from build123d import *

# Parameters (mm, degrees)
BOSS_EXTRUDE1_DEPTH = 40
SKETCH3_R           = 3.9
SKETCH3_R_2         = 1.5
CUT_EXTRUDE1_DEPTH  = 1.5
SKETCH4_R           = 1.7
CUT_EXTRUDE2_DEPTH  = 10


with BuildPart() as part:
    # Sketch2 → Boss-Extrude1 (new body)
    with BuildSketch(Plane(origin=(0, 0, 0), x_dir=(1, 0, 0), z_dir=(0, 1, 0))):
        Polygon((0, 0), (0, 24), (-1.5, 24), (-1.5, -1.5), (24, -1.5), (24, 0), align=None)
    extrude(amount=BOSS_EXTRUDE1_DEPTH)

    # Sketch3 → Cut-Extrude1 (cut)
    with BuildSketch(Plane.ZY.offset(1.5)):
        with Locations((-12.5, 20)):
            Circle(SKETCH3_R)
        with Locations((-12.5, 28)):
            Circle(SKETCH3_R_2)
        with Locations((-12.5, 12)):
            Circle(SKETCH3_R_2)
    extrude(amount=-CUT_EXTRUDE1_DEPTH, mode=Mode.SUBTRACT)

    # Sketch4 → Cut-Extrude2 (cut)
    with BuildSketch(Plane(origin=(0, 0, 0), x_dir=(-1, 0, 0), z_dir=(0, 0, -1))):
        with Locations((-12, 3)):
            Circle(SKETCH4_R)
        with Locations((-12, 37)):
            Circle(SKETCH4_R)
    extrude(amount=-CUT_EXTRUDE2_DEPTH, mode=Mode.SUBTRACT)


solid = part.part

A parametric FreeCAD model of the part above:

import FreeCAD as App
import Part
import Sketcher
from FreeCAD import Vector

doc = App.newDocument("Part")
params = doc.addObject("Spreadsheet::Sheet", "Params")
for row, (alias, value) in enumerate([
    ("sketch1_width", "24 mm"),
    ("sketch1_width2", "1.5 mm"),
    ("pad1_length", "40 mm"),
    ("sketch2_diameter", "3 mm"),
    ("sketch2_diameter2", "7.8 mm"),
    ("pocket1_length", "1.5 mm"),
    ("sketch3_diameter", "3.4 mm"),
    ("pocket2_length", "10 mm"),
], start=1):
    params.set(f"A{row}", alias)
    params.set(f"B{row}", "=" + value)
    params.setAlias(f"B{row}", alias)

body = doc.addObject("PartDesign::Body", "Body")

# Sketch on XZ plane
sketch1 = body.newObject("Sketcher::SketchObject", "Sketch")
sketch1.AttachmentSupport = (doc.getObject("XZ_Plane"), [""])
sketch1.MapMode = "FlatFace"
sketch1.addGeometry([
    Part.LineSegment(Vector(0, 0, 0), Vector(0, -24, 0)),  # 0
    Part.LineSegment(Vector(0, -24, 0), Vector(-1.5, -24, 0)),  # 1
    Part.LineSegment(Vector(-1.5, -24, 0), Vector(-1.5, 1.5, 0)),  # 2
    Part.LineSegment(Vector(-1.5, 1.5, 0), Vector(24, 1.5, 0)),  # 3
    Part.LineSegment(Vector(24, 1.5, 0), Vector(24, 0, 0)),  # 4
    Part.LineSegment(Vector(24, 0, 0), Vector(0, 0, 0)),  # 5
], False)
sketch1.addConstraint([
    Sketcher.Constraint("Coincident", 0, 2, 1, 1),
    Sketcher.Constraint("Coincident", 1, 2, 2, 1),
    Sketcher.Constraint("Coincident", 2, 2, 3, 1),
    Sketcher.Constraint("Coincident", 3, 2, 4, 1),
    Sketcher.Constraint("Coincident", 4, 2, 5, 1),
    Sketcher.Constraint("Coincident", 5, 2, 0, 1),
    Sketcher.Constraint("Vertical", 0),
    Sketcher.Constraint("Horizontal", 1),
    Sketcher.Constraint("Vertical", 2),
    Sketcher.Constraint("Horizontal", 3),
    Sketcher.Constraint("Vertical", 4),
    Sketcher.Constraint("Horizontal", 5),
    Sketcher.Constraint("Coincident", 5, 2, -1, 1),
    Sketcher.Constraint("Equal", 5, 0),
    Sketcher.Constraint("Equal", 3, 2),
    Sketcher.Constraint("DistanceX", 5, 2, 5, 1, 24.0),
    Sketcher.Constraint("DistanceX", 1, 2, 1, 1, 1.5),
])
sketch1.setExpression("Constraints[15]", "Params.sketch1_width")
sketch1.setExpression("Constraints[16]", "Params.sketch1_width2")
pad1 = body.newObject("PartDesign::Pad", "Pad")
pad1.Profile = sketch1
pad1.setExpression("Length", "Params.pad1_length")
pad1.Reversed = True

# Sketch on YZ plane
sketch2 = body.newObject("Sketcher::SketchObject", "Sketch001")
sketch2.AttachmentSupport = (doc.getObject("YZ_Plane"), [""])
sketch2.MapMode = "FlatFace"
sketch2.AttachmentOffset = App.Placement(Vector(0, 0, -1.5), App.Rotation())
sketch2.addGeometry([
    Part.Circle(Vector(20, -12.5, 0), Vector(0, 0, 1), 3.9),
    Part.Circle(Vector(28, -12.5, 0), Vector(0, 0, 1), 1.5),
    Part.Circle(Vector(12, -12.5, 0), Vector(0, 0, 1), 1.5),
], False)
sketch2.addConstraint([
    Sketcher.Constraint("Equal", 1, 2),
    Sketcher.Constraint("Horizontal", 0, 3, 1, 3),
    Sketcher.Constraint("Horizontal", 1, 3, 2, 3),
    Sketcher.Constraint("Diameter", 1, 3.0),
    Sketcher.Constraint("Diameter", 0, 7.8),
    Sketcher.Constraint("DistanceX", -1, 1, 0, 3, 20.0),
    Sketcher.Constraint("DistanceX", -1, 1, 1, 3, 28.0),
    Sketcher.Constraint("DistanceX", -1, 1, 2, 3, 12.0),
    Sketcher.Constraint("DistanceY", 0, 3, -1, 1, 12.5),
])
sketch2.setExpression("Constraints[3]", "Params.sketch2_diameter")
sketch2.setExpression("Constraints[4]", "Params.sketch2_diameter2")
pocket1 = body.newObject("PartDesign::Pocket", "Pocket")
pocket1.Profile = sketch2
pocket1.setExpression("Length", "Params.pocket1_length")
pocket1.Reversed = True

# Sketch on XY plane
sketch3 = body.newObject("Sketcher::SketchObject", "Sketch002")
sketch3.AttachmentSupport = (doc.getObject("XY_Plane"), [""])
sketch3.MapMode = "FlatFace"
sketch3.addGeometry([
    Part.Circle(Vector(12, 3, 0), Vector(0, 0, 1), 1.7),
    Part.Circle(Vector(12, 37, 0), Vector(0, 0, 1), 1.7),
], False)
sketch3.addConstraint([
    Sketcher.Constraint("Equal", 0, 1),
    Sketcher.Constraint("Vertical", 0, 3, 1, 3),
    Sketcher.Constraint("Diameter", 0, 3.4),
    Sketcher.Constraint("DistanceX", -1, 1, 0, 3, 12.0),
    Sketcher.Constraint("DistanceY", -1, 1, 0, 3, 3.0),
    Sketcher.Constraint("DistanceY", -1, 1, 1, 3, 37.0),
])
sketch3.setExpression("Constraints[2]", "Params.sketch3_diameter")
pocket2 = body.newObject("PartDesign::Pocket", "Pocket001")
pocket2.Profile = sketch3
pocket2.setExpression("Length", "Params.pocket2_length")
pocket2.Reversed = True

doc.recompute()
